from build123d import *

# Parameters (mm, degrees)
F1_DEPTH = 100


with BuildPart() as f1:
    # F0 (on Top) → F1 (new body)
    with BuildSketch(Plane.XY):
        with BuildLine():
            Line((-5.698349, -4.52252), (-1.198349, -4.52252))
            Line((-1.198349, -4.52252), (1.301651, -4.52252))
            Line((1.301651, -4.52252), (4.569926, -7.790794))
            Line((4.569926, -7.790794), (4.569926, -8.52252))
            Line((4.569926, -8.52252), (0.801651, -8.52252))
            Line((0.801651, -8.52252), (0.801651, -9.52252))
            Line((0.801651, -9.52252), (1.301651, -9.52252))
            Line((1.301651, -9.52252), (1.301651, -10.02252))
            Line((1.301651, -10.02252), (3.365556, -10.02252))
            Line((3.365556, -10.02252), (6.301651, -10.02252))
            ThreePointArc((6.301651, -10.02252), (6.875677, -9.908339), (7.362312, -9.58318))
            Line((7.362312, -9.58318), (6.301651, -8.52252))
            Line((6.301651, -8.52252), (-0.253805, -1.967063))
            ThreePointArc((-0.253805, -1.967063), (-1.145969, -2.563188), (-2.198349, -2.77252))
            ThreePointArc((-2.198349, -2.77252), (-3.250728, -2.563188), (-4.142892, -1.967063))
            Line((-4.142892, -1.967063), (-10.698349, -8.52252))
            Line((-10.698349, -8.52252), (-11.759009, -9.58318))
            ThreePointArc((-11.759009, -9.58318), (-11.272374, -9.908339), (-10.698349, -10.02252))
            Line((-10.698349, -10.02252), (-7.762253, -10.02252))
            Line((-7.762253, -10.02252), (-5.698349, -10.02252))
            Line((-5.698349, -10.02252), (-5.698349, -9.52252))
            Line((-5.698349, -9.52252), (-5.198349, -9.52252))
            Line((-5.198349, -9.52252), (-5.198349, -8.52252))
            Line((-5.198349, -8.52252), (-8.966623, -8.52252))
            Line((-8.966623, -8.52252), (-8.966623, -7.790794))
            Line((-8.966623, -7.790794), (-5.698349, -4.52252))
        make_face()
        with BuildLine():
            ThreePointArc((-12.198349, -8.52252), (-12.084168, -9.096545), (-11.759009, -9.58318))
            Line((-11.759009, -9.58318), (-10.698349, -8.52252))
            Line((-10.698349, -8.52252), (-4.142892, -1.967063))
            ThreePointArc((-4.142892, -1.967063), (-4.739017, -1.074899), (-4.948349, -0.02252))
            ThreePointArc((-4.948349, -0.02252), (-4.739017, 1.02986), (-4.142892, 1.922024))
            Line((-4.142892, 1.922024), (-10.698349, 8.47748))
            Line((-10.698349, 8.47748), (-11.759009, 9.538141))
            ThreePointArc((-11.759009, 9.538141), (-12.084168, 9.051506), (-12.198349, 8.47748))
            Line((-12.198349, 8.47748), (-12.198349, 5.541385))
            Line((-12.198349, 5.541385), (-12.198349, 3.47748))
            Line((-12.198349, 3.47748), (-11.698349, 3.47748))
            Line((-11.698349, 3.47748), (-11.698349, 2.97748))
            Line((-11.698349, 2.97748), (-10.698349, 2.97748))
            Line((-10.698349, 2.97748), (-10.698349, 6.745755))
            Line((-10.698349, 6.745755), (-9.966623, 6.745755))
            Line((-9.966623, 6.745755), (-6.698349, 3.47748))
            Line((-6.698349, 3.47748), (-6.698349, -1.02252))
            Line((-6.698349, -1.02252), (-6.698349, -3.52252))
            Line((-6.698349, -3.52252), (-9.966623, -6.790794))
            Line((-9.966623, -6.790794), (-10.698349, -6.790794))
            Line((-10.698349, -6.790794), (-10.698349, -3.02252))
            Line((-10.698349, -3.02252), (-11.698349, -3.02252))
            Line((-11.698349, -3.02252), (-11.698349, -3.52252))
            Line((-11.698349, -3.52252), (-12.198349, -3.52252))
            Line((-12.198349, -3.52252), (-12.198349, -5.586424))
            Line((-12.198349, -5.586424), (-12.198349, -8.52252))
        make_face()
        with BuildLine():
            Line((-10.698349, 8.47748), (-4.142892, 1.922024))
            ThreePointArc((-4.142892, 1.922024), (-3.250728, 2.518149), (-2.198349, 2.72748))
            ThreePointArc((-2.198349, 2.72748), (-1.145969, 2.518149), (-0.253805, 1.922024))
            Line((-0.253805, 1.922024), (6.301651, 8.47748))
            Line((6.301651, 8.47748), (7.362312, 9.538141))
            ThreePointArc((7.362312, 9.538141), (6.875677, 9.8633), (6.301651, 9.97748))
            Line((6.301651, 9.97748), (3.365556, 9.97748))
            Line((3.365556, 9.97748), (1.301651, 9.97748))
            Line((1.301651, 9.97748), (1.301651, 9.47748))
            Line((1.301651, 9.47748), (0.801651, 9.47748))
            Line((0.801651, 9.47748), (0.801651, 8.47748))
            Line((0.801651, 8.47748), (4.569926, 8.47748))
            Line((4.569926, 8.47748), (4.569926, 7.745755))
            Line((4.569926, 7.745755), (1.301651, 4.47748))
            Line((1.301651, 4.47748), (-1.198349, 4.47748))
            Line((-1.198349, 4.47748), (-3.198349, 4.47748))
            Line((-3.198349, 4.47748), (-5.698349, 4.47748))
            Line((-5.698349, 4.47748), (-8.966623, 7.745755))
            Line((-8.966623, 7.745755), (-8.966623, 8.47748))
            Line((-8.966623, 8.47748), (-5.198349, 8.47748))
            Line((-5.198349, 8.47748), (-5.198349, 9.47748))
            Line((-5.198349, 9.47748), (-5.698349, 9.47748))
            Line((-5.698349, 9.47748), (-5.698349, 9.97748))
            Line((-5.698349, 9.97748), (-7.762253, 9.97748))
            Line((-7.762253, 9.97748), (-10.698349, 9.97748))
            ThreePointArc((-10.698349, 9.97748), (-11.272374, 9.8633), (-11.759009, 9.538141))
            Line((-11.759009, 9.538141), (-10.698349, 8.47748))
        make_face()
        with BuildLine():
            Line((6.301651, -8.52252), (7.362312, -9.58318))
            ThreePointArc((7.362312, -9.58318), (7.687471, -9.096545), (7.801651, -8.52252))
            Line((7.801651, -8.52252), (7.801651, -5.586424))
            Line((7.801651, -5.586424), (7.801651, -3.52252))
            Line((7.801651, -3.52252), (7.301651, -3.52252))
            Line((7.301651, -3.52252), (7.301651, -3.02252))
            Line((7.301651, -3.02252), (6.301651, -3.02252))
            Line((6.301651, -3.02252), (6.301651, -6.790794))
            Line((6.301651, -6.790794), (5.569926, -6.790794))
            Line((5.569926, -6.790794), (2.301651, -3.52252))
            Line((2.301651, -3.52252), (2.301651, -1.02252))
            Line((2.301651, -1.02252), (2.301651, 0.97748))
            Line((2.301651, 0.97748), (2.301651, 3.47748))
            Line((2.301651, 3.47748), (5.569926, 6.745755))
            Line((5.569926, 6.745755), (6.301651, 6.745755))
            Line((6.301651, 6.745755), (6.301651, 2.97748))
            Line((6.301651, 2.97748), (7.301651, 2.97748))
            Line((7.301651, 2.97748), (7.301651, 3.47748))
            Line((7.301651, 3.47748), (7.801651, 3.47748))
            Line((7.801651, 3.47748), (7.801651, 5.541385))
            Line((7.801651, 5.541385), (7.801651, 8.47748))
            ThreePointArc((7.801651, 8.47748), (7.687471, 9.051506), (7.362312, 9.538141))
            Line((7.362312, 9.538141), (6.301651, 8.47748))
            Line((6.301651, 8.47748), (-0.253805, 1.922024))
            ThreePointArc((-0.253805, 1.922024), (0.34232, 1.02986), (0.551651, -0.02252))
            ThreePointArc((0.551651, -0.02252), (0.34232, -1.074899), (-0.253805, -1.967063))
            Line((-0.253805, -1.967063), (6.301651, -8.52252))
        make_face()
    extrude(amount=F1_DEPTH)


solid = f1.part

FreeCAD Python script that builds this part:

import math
import FreeCAD as App
import Part
import Sketcher

doc = App.newDocument("Part")
body = doc.addObject("PartDesign::Body", "Body")

# Sketch on XY plane
sketch1 = body.newObject("Sketcher::SketchObject", "Sketch")
sketch1.AttachmentSupport = (doc.getObject("XY_Plane"), [""])
sketch1.MapMode = "FlatFace"
sketch1.addGeometry(Part.LineSegment(App.Vector(-5.7, -4.52, 0), App.Vector(1.3, -4.52, 0)), False)
sketch1.addGeometry(Part.LineSegment(App.Vector(1.3, -4.52, 0), App.Vector(4.57, -7.79, 0)), False)
sketch1.addGeometry(Part.LineSegment(App.Vector(4.57, -7.79, 0), App.Vector(4.57, -8.52, 0)), False)
sketch1.addGeometry(Part.LineSegment(App.Vector(4.57, -8.52, 0), App.Vector(0.8, -8.52, 0)), False)
sketch1.addGeometry(Part.LineSegment(App.Vector(0.8, -8.52, 0), App.Vector(0.8, -9.52, 0)), False)
sketch1.addGeometry(Part.LineSegment(App.Vector(0.8, -9.52, 0), App.Vector(1.3, -9.52, 0)), False)
sketch1.addGeometry(Part.LineSegment(App.Vector(1.3, -9.52, 0), App.Vector(1.3, -10.02, 0)), False)
sketch1.addGeometry(Part.LineSegment(App.Vector(1.3, -10.02, 0), App.Vector(6.3, -10.02, 0)), False)
sketch1.addGeometry(Part.ArcOfCircle(Part.Circle(App.Vector(6.3, -8.52, 0), App.Vector(0, 0, 1), 1.5), math.radians(-90), math.radians(-45)), False)
sketch1.addGeometry(Part.ArcOfCircle(Part.Circle(App.Vector(6.3, -8.52, 0), App.Vector(0, 0, 1), 1.5), math.radians(-45), math.radians(0)), False)
sketch1.addGeometry(Part.LineSegment(App.Vector(7.8, -8.52, 0), App.Vector(7.8, -3.52, 0)), False)
sketch1.addGeometry(Part.LineSegment(App.Vector(7.8, -3.52, 0), App.Vector(7.3, -3.52, 0)), False)
sketch1.addGeometry(Part.LineSegment(App.Vector(7.3, -3.52, 0), App.Vector(7.3, -3.02, 0)), False)
sketch1.addGeometry(Part.LineSegment(App.Vector(7.3, -3.02, 0), App.Vector(6.3, -3.02, 0)), False)
sketch1.addGeometry(Part.LineSegment(App.Vector(6.3, -3.02, 0), App.Vector(6.3, -6.79, 0)), False)
sketch1.addGeometry(Part.LineSegment(App.Vector(6.3, -6.79, 0), App.Vector(5.57, -6.79, 0)), False)
sketch1.addGeometry(Part.LineSegment(App.Vector(5.57, -6.79, 0), App.Vector(2.3, -3.52, 0)), False)
sketch1.addGeometry(Part.LineSegment(App.Vector(2.3, -3.52, 0), App.Vector(2.3, 3.48, 0)), False)
sketch1.addGeometry(Part.LineSegment(App.Vector(2.3, 3.48, 0), App.Vector(5.57, 6.75, 0)), False)
sketch1.addGeometry(Part.LineSegment(App.Vector(5.57, 6.75, 0), App.Vector(6.3, 6.75, 0)), False)
sketch1.addGeometry(Part.LineSegment(App.Vector(6.3, 6.75, 0), App.Vector(6.3, 2.98, 0)), False)
sketch1.addGeometry(Part.LineSegment(App.Vector(6.3, 2.98, 0), App.Vector(7.3, 2.98, 0)), False)
sketch1.addGeometry(Part.LineSegment(App.Vector(7.3, 2.98, 0), App.Vector(7.3, 3.48, 0)), False)
sketch1.addGeometry(Part.LineSegment(App.Vector(7.3, 3.48, 0), App.Vector(7.8, 3.48, 0)), False)
sketch1.addGeometry(Part.LineSegment(App.Vector(7.8, 3.48, 0), App.Vector(7.8, 8.48, 0)), False)
sketch1.addGeometry(Part.ArcOfCircle(Part.Circle(App.Vector(6.3, 8.48, 0), App.Vector(0, 0, 1), 1.5), math.radians(0), math.radians(45)), False)
sketch1.addGeometry(Part.ArcOfCircle(Part.Circle(App.Vector(6.3, 8.48, 0), App.Vector(0, 0, 1), 1.5), math.radians(45), math.radians(90)), False)
sketch1.addGeometry(Part.LineSegment(App.Vector(6.3, 9.98, 0), App.Vector(1.3, 9.98, 0)), False)
sketch1.addGeometry(Part.LineSegment(App.Vector(1.3, 9.98, 0), App.Vector(1.3, 9.48, 0)), False)
sketch1.addGeometry(Part.LineSegment(App.Vector(1.3, 9.48, 0), App.Vector(0.8, 9.48, 0)), False)
sketch1.addGeometry(Part.LineSegment(App.Vector(0.8, 9.48, 0), App.Vector(0.8, 8.48, 0)), False)
sketch1.addGeometry(Part.LineSegment(App.Vector(0.8, 8.48, 0), App.Vector(4.57, 8.48, 0)), False)
sketch1.addGeometry(Part.LineSegment(App.Vector(4.57, 8.48, 0), App.Vector(4.57, 7.75, 0)), False)
sketch1.addGeometry(Part.LineSegment(App.Vector(4.57, 7.75, 0), App.Vector(1.3, 4.48, 0)), False)
sketch1.addGeometry(Part.LineSegment(App.Vector(1.3, 4.48, 0), App.Vector(-5.7, 4.48, 0)), False)
sketch1.addGeometry(Part.LineSegment(App.Vector(-5.7, 4.48, 0), App.Vector(-8.97, 7.75, 0)), False)
sketch1.addGeometry(Part.LineSegment(App.Vector(-8.97, 7.75, 0), App.Vector(-8.97, 8.48, 0)), False)
sketch1.addGeometry(Part.LineSegment(App.Vector(-8.97, 8.48, 0), App.Vector(-5.2, 8.48, 0)), False)
sketch1.addGeometry(Part.LineSegment(App.Vector(-5.2, 8.48, 0), App.Vector(-5.2, 9.48, 0)), False)
sketch1.addGeometry(Part.LineSegment(App.Vector(-5.2, 9.48, 0), App.Vector(-5.7, 9.48, 0)), False)
sketch1.addGeometry(Part.LineSegment(App.Vector(-5.7, 9.48, 0), App.Vector(-5.7, 9.98, 0)), False)
sketch1.addGeometry(Part.LineSegment(App.Vector(-5.7, 9.98, 0), App.Vector(-10.7, 9.98, 0)), False)
sketch1.addGeometry(Part.ArcOfCircle(Part.Circle(App.Vector(-10.7, 8.48, 0), App.Vector(0, 0, 1), 1.5), math.radians(90), math.radians(135)), False)
sketch1.addGeometry(Part.ArcOfCircle(Part.Circle(App.Vector(-10.7, 8.48, 0), App.Vector(0, 0, 1), 1.5), math.radians(135), math.radians(180)), False)
sketch1.addGeometry(Part.LineSegment(App.Vector(-12.2, 8.48, 0), App.Vector(-12.2, 3.48, 0)), False)
sketch1.addGeometry(Part.LineSegment(App.Vector(-12.2, 3.48, 0), App.Vector(-11.7, 3.48, 0)), False)
sketch1.addGeometry(Part.LineSegment(App.Vector(-11.7, 3.48, 0), App.Vector(-11.7, 2.98, 0)), False)
sketch1.addGeometry(Part.LineSegment(App.Vector(-11.7, 2.98, 0), App.Vector(-10.7, 2.98, 0)), False)
sketch1.addGeometry(Part.LineSegment(App.Vector(-10.7, 2.98, 0), App.Vector(-10.7, 6.75, 0)), False)
sketch1.addGeometry(Part.LineSegment(App.Vector(-10.7, 6.75, 0), App.Vector(-9.97, 6.75, 0)), False)
sketch1.addGeometry(Part.LineSegment(App.Vector(-9.97, 6.75, 0), App.Vector(-6.7, 3.48, 0)), False)
sketch1.addGeometry(Part.LineSegment(App.Vector(-6.7, 3.48, 0), App.Vector(-6.7, -3.52, 0)), False)
sketch1.addGeometry(Part.LineSegment(App.Vector(-6.7, -3.52, 0), App.Vector(-9.97, -6.79, 0)), False)
sketch1.addGeometry(Part.LineSegment(App.Vector(-9.97, -6.79, 0), App.Vector(-10.7, -6.79, 0)), False)
sketch1.addGeometry(Part.LineSegment(App.Vector(-10.7, -6.79, 0), App.Vector(-10.7, -3.02, 0)), False)
sketch1.addGeometry(Part.LineSegment(App.Vector(-10.7, -3.02, 0), App.Vector(-11.7, -3.02, 0)), False)
sketch1.addGeometry(Part.LineSegment(App.Vector(-11.7, -3.02, 0), App.Vector(-11.7, -3.52, 0)), False)
sketch1.addGeometry(Part.LineSegment(App.Vector(-11.7, -3.52, 0), App.Vector(-12.2, -3.52, 0)), False)
sketch1.addGeometry(Part.LineSegment(App.Vector(-12.2, -3.52, 0), App.Vector(-12.2, -8.52, 0)), False)
sketch1.addGeometry(Part.ArcOfCircle(Part.Circle(App.Vector(-10.7, -8.52, 0), App.Vector(0, 0, 1), 1.5), math.radians(-180), math.radians(-135)), False)
sketch1.addGeometry(Part.ArcOfCircle(Part.Circle(App.Vector(-10.7, -8.52, 0), App.Vector(0, 0, 1), 1.5), math.radians(-135), math.radians(-90)), False)
sketch1.addGeometry(Part.LineSegment(App.Vector(-10.7, -10.02, 0), App.Vector(-5.7, -10.02, 0)), False)
sketch1.addGeometry(Part.LineSegment(App.Vector(-5.7, -10.02, 0), App.Vector(-5.7, -9.52, 0)), False)
sketch1.addGeometry(Part.LineSegment(App.Vector(-5.7, -9.52, 0), App.Vector(-5.2, -9.52, 0)), False)
sketch1.addGeometry(Part.LineSegment(App.Vector(-5.2, -9.52, 0), App.Vector(-5.2, -8.52, 0)), False)
sketch1.addGeometry(Part.LineSegment(App.Vector(-5.2, -8.52, 0), App.Vector(-8.97, -8.52, 0)), False)
sketch1.addGeometry(Part.LineSegment(App.Vector(-8.97, -8.52, 0), App.Vector(-8.97, -7.79, 0)), False)
sketch1.addGeometry(Part.LineSegment(App.Vector(-8.97, -7.79, 0), App.Vector(-5.7, -4.52, 0)), False)
sketch1.addGeometry(Part.ArcOfCircle(Part.Circle(App.Vector(-2.2, -0.02, 0), App.Vector(0, 0, 1), 2.75), math.radians(-90), math.radians(-45)), False)
sketch1.addGeometry(Part.ArcOfCircle(Part.Circle(App.Vector(-2.2, -0.02, 0), App.Vector(0, 0, 1), 2.75), math.radians(-135), math.radians(-90)), False)
sketch1.addGeometry(Part.ArcOfCircle(Part.Circle(App.Vector(-2.2, -0.02, 0), App.Vector(0, 0, 1), 2.75), math.radians(-180), math.radians(-135)), False)
sketch1.addGeometry(Part.ArcOfCircle(Part.Circle(App.Vector(-2.2, -0.02, 0), App.Vector(0, 0, 1), 2.75), math.radians(135), math.radians(180)), False)
sketch1.addGeometry(Part.ArcOfCircle(Part.Circle(App.Vector(-2.2, -0.02, 0), App.Vector(0, 0, 1), 2.75), math.radians(90), math.radians(135)), False)
sketch1.addGeometry(Part.ArcOfCircle(Part.Circle(App.Vector(-2.2, -0.02, 0), App.Vector(0, 0, 1), 2.75), math.radians(45), math.radians(90)), False)
sketch1.addGeometry(Part.ArcOfCircle(Part.Circle(App.Vector(-2.2, -0.02, 0), App.Vector(0, 0, 1), 2.75), math.radians(0), math.radians(45)), False)
sketch1.addGeometry(Part.ArcOfCircle(Part.Circle(App.Vector(-2.2, -0.02, 0), App.Vector(0, 0, 1), 2.75), math.radians(-45), math.radians(0)), False)
sketch1.addConstraint(Sketcher.Constraint("Coincident", 0, 2, 1, 1))
sketch1.addConstraint(Sketcher.Constraint("Coincident", 1, 2, 2, 1))
sketch1.addConstraint(Sketcher.Constraint("Coincident", 2, 2, 3, 1))
sketch1.addConstraint(Sketcher.Constraint("Coincident", 3, 2, 4, 1))
sketch1.addConstraint(Sketcher.Constraint("Coincident", 4, 2, 5, 1))
sketch1.addConstraint(Sketcher.Constraint("Coincident", 5, 2, 6, 1))
sketch1.addConstraint(Sketcher.Constraint("Coincident", 6, 2, 7, 1))
sketch1.addConstraint(Sketcher.Constraint("Tangent", 7, 2, 8, 1))
sketch1.addConstraint(Sketcher.Constraint("Tangent", 8, 2, 9, 1))
sketch1.addConstraint(Sketcher.Constraint("Tangent", 9, 2, 10, 1))
sketch1.addConstraint(Sketcher.Constraint("Coincident", 10, 2, 11, 1))
sketch1.addConstraint(Sketcher.Constraint("Coincident", 11, 2, 12, 1))
sketch1.addConstraint(Sketcher.Constraint("Coincident", 12, 2, 13, 1))
sketch1.addConstraint(Sketcher.Constraint("Coincident", 13, 2, 14, 1))
sketch1.addConstraint(Sketcher.Constraint("Coincident", 14, 2, 15, 1))
sketch1.addConstraint(Sketcher.Constraint("Coincident", 15, 2, 16, 1))
sketch1.addConstraint(Sketcher.Constraint("Coincident", 16, 2, 17, 1))
sketch1.addConstraint(Sketcher.Constraint("Coincident", 17, 2, 18, 1))
sketch1.addConstraint(Sketcher.Constraint("Coincident", 18, 2, 19, 1))
sketch1.addConstraint(Sketcher.Constraint("Coincident", 19, 2, 20, 1))
sketch1.addConstraint(Sketcher.Constraint("Coincident", 20, 2, 21, 1))
sketch1.addConstraint(Sketcher.Constraint("Coincident", 21, 2, 22, 1))
sketch1.addConstraint(Sketcher.Constraint("Coincident", 22, 2, 23, 1))
sketch1.addConstraint(Sketcher.Constraint("Coincident", 23, 2, 24, 1))
sketch1.addConstraint(Sketcher.Constraint("Coincident", 24, 2, 25, 1))
sketch1.addConstraint(Sketcher.Constraint("Tangent", 25, 2, 26, 1))
sketch1.addConstraint(Sketcher.Constraint("Coincident", 26, 2, 27, 1))
sketch1.addConstraint(Sketcher.Constraint("Coincident", 27, 2, 28, 1))
sketch1.addConstraint(Sketcher.Constraint("Coincident", 28, 2, 29, 1))
sketch1.addConstraint(Sketcher.Constraint("Coincident", 29, 2, 30, 1))
sketch1.addConstraint(Sketcher.Constraint("Coincident", 30, 2, 31, 1))
sketch1.addConstraint(Sketcher.Constraint("Coincident", 31, 2, 32, 1))
sketch1.addConstraint(Sketcher.Constraint("Coincident", 32, 2, 33, 1))
sketch1.addConstraint(Sketcher.Constraint("Coincident", 33, 2, 34, 1))
sketch1.addConstraint(Sketcher.Constraint("Coincident", 34, 2, 35, 1))
sketch1.addConstraint(Sketcher.Constraint("Coincident", 35, 2, 36, 1))
sketch1.addConstraint(Sketcher.Constraint("Coincident", 36, 2, 37, 1))
sketch1.addConstraint(Sketcher.Constraint("Coincident", 37, 2, 38, 1))
sketch1.addConstraint(Sketcher.Constraint("Coincident", 38, 2, 39, 1))
sketch1.addConstraint(Sketcher.Constraint("Coincident", 39, 2, 40, 1))
sketch1.addConstraint(Sketcher.Constraint("Coincident", 40, 2, 41, 1))
sketch1.addConstraint(Sketcher.Constraint("Tangent", 41, 2, 42, 1))
sketch1.addConstraint(Sketcher.Constraint("Tangent", 42, 2, 43, 1))
sketch1.addConstraint(Sketcher.Constraint("Tangent", 43, 2, 44, 1))
sketch1.addConstraint(Sketcher.Constraint("Coincident", 44, 2, 45, 1))
sketch1.addConstraint(Sketcher.Constraint("Coincident", 45, 2, 46, 1))
sketch1.addConstraint(Sketcher.Constraint("Coincident", 46, 2, 47, 1))
sketch1.addConstraint(Sketcher.Constraint("Coincident", 47, 2, 48, 1))
sketch1.addConstraint(Sketcher.Constraint("Coincident", 48, 2, 49, 1))
sketch1.addConstraint(Sketcher.Constraint("Coincident", 49, 2, 50, 1))
sketch1.addConstraint(Sketcher.Constraint("Coincident", 50, 2, 51, 1))
sketch1.addConstraint(Sketcher.Constraint("Coincident", 51, 2, 52, 1))
sketch1.addConstraint(Sketcher.Constraint("Coincident", 52, 2, 53, 1))
sketch1.addConstraint(Sketcher.Constraint("Coincident", 53, 2, 54, 1))
sketch1.addConstraint(Sketcher.Constraint("Coincident", 54, 2, 55, 1))
sketch1.addConstraint(Sketcher.Constraint("Coincident", 55, 2, 56, 1))
sketch1.addConstraint(Sketcher.Constraint("Coincident", 56, 2, 57, 1))
sketch1.addConstraint(Sketcher.Constraint("Coincident", 57, 2, 58, 1))
sketch1.addConstraint(Sketcher.Constraint("Tangent", 58, 2, 59, 1))
sketch1.addConstraint(Sketcher.Constraint("Tangent", 59, 2, 60, 1))
sketch1.addConstraint(Sketcher.Constraint("Tangent", 60, 2, 61, 1))
sketch1.addConstraint(Sketcher.Constraint("Coincident", 61, 2, 62, 1))
sketch1.addConstraint(Sketcher.Constraint("Coincident", 62, 2, 63, 1))
sketch1.addConstraint(Sketcher.Constraint("Coincident", 63, 2, 64, 1))
sketch1.addConstraint(Sketcher.Constraint("Coincident", 64, 2, 65, 1))
sketch1.addConstraint(Sketcher.Constraint("Coincident", 65, 2, 66, 1))
sketch1.addConstraint(Sketcher.Constraint("Coincident", 66, 2, 67, 1))
sketch1.addConstraint(Sketcher.Constraint("Coincident", 67, 2, 0, 1))
sketch1.addConstraint(Sketcher.Constraint("Tangent", 68, 1, 69, 2))
sketch1.addConstraint(Sketcher.Constraint("Tangent", 69, 1, 70, 2))
sketch1.addConstraint(Sketcher.Constraint("Tangent", 70, 1, 71, 2))
sketch1.addConstraint(Sketcher.Constraint("Tangent", 71, 1, 72, 2))
sketch1.addConstraint(Sketcher.Constraint("Tangent", 72, 1, 73, 2))
sketch1.addConstraint(Sketcher.Constraint("Tangent", 73, 1, 74, 2))
sketch1.addConstraint(Sketcher.Constraint("Tangent", 74, 1, 75, 2))
sketch1.addConstraint(Sketcher.Constraint("Tangent", 75, 1, 68, 2))
sketch1.addConstraint(Sketcher.Constraint("Horizontal", 0))
sketch1.addConstraint(Sketcher.Constraint("Vertical", 2))
sketch1.addConstraint(Sketcher.Constraint("Horizontal", 3))
sketch1.addConstraint(Sketcher.Constraint("Vertical", 4))
sketch1.addConstraint(Sketcher.Constraint("Horizontal", 5))
sketch1.addConstraint(Sketcher.Constraint("Vertical", 6))
sketch1.addConstraint(Sketcher.Constraint("Horizontal", 7))
sketch1.addConstraint(Sketcher.Constraint("Vertical", 10))
sketch1.addConstraint(Sketcher.Constraint("Horizontal", 11))
sketch1.addConstraint(Sketcher.Constraint("Vertical", 12))
sketch1.addConstraint(Sketcher.Constraint("Horizontal", 13))
sketch1.addConstraint(Sketcher.Constraint("Vertical", 14))
sketch1.addConstraint(Sketcher.Constraint("Horizontal", 15))
sketch1.addConstraint(Sketcher.Constraint("Vertical", 17))
sketch1.addConstraint(Sketcher.Constraint("Horizontal", 19))
sketch1.addConstraint(Sketcher.Constraint("Vertical", 20))
sketch1.addConstraint(Sketcher.Constraint("Horizontal", 21))
sketch1.addConstraint(Sketcher.Constraint("Vertical", 22))
sketch1.addConstraint(Sketcher.Constraint("Horizontal", 23))
sketch1.addConstraint(Sketcher.Constraint("Vertical", 24))
sketch1.addConstraint(Sketcher.Constraint("Horizontal", 27))
sketch1.addConstraint(Sketcher.Constraint("Vertical", 28))
sketch1.addConstraint(Sketcher.Constraint("Horizontal", 29))
sketch1.addConstraint(Sketcher.Constraint("Vertical", 30))
sketch1.addConstraint(Sketcher.Constraint("Horizontal", 31))
sketch1.addConstraint(Sketcher.Constraint("Vertical", 32))
sketch1.addConstraint(Sketcher.Constraint("Horizontal", 34))
sketch1.addConstraint(Sketcher.Constraint("Vertical", 36))
sketch1.addConstraint(Sketcher.Constraint("Horizontal", 37))
sketch1.addConstraint(Sketcher.Constraint("Vertical", 38))
sketch1.addConstraint(Sketcher.Constraint("Horizontal", 39))
sketch1.addConstraint(Sketcher.Constraint("Vertical", 40))
sketch1.addConstraint(Sketcher.Constraint("Horizontal", 41))
sketch1.addConstraint(Sketcher.Constraint("Vertical", 44))
sketch1.addConstraint(Sketcher.Constraint("Horizontal", 45))
sketch1.addConstraint(Sketcher.Constraint("Vertical", 46))
sketch1.addConstraint(Sketcher.Constraint("Horizontal", 47))
sketch1.addConstraint(Sketcher.Constraint("Vertical", 48))
sketch1.addConstraint(Sketcher.Constraint("Horizontal", 49))
sketch1.addConstraint(Sketcher.Constraint("Vertical", 51))
sketch1.addConstraint(Sketcher.Constraint("Horizontal", 53))
sketch1.addConstraint(Sketcher.Constraint("Vertical", 54))
sketch1.addConstraint(Sketcher.Constraint("Horizontal", 55))
sketch1.addConstraint(Sketcher.Constraint("Vertical", 56))
sketch1.addConstraint(Sketcher.Constraint("Horizontal", 57))
sketch1.addConstraint(Sketcher.Constraint("Vertical", 58))
sketch1.addConstraint(Sketcher.Constraint("Horizontal", 61))
sketch1.addConstraint(Sketcher.Constraint("Vertical", 62))
sketch1.addConstraint(Sketcher.Constraint("Horizontal", 63))
sketch1.addConstraint(Sketcher.Constraint("Vertical", 64))
sketch1.addConstraint(Sketcher.Constraint("Horizontal", 65))
sketch1.addConstraint(Sketcher.Constraint("Vertical", 66))
sketch1.addConstraint(Sketcher.Constraint("Coincident", 70, 3, 68, 3))
sketch1.addConstraint(Sketcher.Constraint("Coincident", 72, 3, 68, 3))
sketch1.addConstraint(Sketcher.Constraint("Equal", 9, 25))
sketch1.addConstraint(Sketcher.Constraint("Equal", 25, 26))
sketch1.addConstraint(Sketcher.Constraint("Equal", 26, 42))
sketch1.addConstraint(Sketcher.Constraint("Equal", 8, 43))
sketch1.addConstraint(Sketcher.Constraint("Equal", 43, 59))
sketch1.addConstraint(Sketcher.Constraint("Equal", 59, 60))
sketch1.addConstraint(Sketcher.Constraint("Equal", 72, 73))
sketch1.addConstraint(Sketcher.Constraint("Parallel", 1, 16))
sketch1.addConstraint(Sketcher.Constraint("Perpendicular", 16, 18))
sketch1.addConstraint(Sketcher.Constraint("Parallel", 18, 33))
sketch1.addConstraint(Sketcher.Constraint("Perpendicular", 33, 35))
sketch1.addConstraint(Sketcher.Constraint("Parallel", 35, 50))
sketch1.addConstraint(Sketcher.Constraint("Perpendicular", 50, 52))
sketch1.addConstraint(Sketcher.Constraint("Parallel", 52, 67))
sketch1.addConstraint(Sketcher.Constraint("Horizontal", 26, 3, 42, 3))
sketch1.addConstraint(Sketcher.Constraint("Horizontal", 8, 3, 59, 3))
sketch1.addConstraint(Sketcher.Constraint("Horizontal", 59, 3, 2, 2))
sketch1.addConstraint(Sketcher.Constraint("Horizontal", 3, 2, 9, 2))
sketch1.addConstraint(Sketcher.Constraint("Horizontal", 11, 2, 16, 2))
sketch1.addConstraint(Sketcher.Constraint("Horizontal", 17, 2, 22, 2))
sketch1.addConstraint(Sketcher.Constraint("Horizontal", 43, 3, 24, 2))
sketch1.addConstraint(Sketcher.Constraint("Horizontal", 24, 2, 30, 2))
sketch1.addConstraint(Sketcher.Constraint("Horizontal", 32, 2, 35, 2))
sketch1.addConstraint(Sketcher.Constraint("Horizontal", 31, 2, 36, 2))
sketch1.addConstraint(Sketcher.Constraint("Horizontal", 29, 2, 38, 2))
sketch1.addConstraint(Sketcher.Constraint("Horizontal", 25, 2, 42, 2))
sketch1.addConstraint(Sketcher.Constraint("Horizontal", 23, 2, 44, 2))
sketch1.addConstraint(Sketcher.Constraint("Horizontal", 21, 2, 46, 2))
sketch1.addConstraint(Sketcher.Constraint("Horizontal", 19, 2, 48, 2))
sketch1.addConstraint(Sketcher.Constraint("Horizontal", 45, 2, 50, 2))
sketch1.addConstraint(Sketcher.Constraint("Horizontal", 16, 2, 51, 2))
sketch1.addConstraint(Sketcher.Constraint("Horizontal", 15, 2, 52, 2))
sketch1.addConstraint(Sketcher.Constraint("Horizontal", 13, 2, 54, 2))
sketch1.addConstraint(Sketcher.Constraint("Horizontal", 51, 2, 56, 2))
sketch1.addConstraint(Sketcher.Constraint("Horizontal", 8, 2, 59, 2))
sketch1.addConstraint(Sketcher.Constraint("Horizontal", 5, 2, 62, 2))
sketch1.addConstraint(Sketcher.Constraint("Horizontal", 58, 2, 64, 2))
sketch1.addConstraint(Sketcher.Constraint("Horizontal", 1, 2, 66, 2))
sketch1.addConstraint(Sketcher.Constraint("Horizontal", 75, 3, 70, 1))
sketch1.addConstraint(Sketcher.Constraint("Horizontal", 71, 1, 73, 1))
sketch1.addConstraint(Sketcher.Constraint("Horizontal", 70, 1, 74, 1))
sketch1.addConstraint(Sketcher.Constraint("Horizontal", 69, 1, 75, 1))
sketch1.addConstraint(Sketcher.Constraint("Vertical", 9, 3, 25, 3))
sketch1.addConstraint(Sketcher.Constraint("Vertical", 43, 3, 59, 3))
sketch1.addConstraint(Sketcher.Constraint("Vertical", 0, 2, 5, 2))
sketch1.addConstraint(Sketcher.Constraint("Vertical", 7, 2, 13, 2))
sketch1.addConstraint(Sketcher.Constraint("Vertical", 15, 2, 18, 2))
sketch1.addConstraint(Sketcher.Constraint("Vertical", 14, 2, 19, 2))
sketch1.addConstraint(Sketcher.Constraint("Vertical", 12, 2, 21, 2))
sketch1.addConstraint(Sketcher.Constraint("Vertical", 8, 2, 25, 2))
sketch1.addConstraint(Sketcher.Constraint("Vertical", 20, 2, 26, 2))
sketch1.addConstraint(Sketcher.Constraint("Vertical", 6, 2, 27, 2))
sketch1.addConstraint(Sketcher.Constraint("Vertical", 4, 2, 29, 2))
sketch1.addConstraint(Sketcher.Constraint("Vertical", 2, 2, 31, 2))
sketch1.addConstraint(Sketcher.Constraint("Vertical", 28, 2, 33, 2))
sketch1.addConstraint(Sketcher.Constraint("Vertical", 34, 2, 39, 2))
sketch1.addConstraint(Sketcher.Constraint("Vertical", 41, 2, 47, 2))
sketch1.addConstraint(Sketcher.Constraint("Vertical", 49, 2, 52, 2))
sketch1.addConstraint(Sketcher.Constraint("Vertical", 48, 2, 53, 2))
sketch1.addConstraint(Sketcher.Constraint("Vertical", 46, 2, 55, 2))
sketch1.addConstraint(Sketcher.Constraint("Vertical", 40, 2, 61, 2))
sketch1.addConstraint(Sketcher.Constraint("Vertical", 38, 2, 63, 2))
sketch1.addConstraint(Sketcher.Constraint("Vertical", 36, 2, 65, 2))
sketch1.addConstraint(Sketcher.Constraint("Vertical", 73, 3, 68, 1))
sketch1.addConstraint(Sketcher.Constraint("Vertical", 69, 1, 71, 1))
sketch1.addConstraint(Sketcher.Constraint("Vertical", 68, 1, 72, 1))
sketch1.addConstraint(Sketcher.Constraint("Equal", 5, 11))
sketch1.addConstraint(Sketcher.Constraint("Equal", 31, 37))
sketch1.addConstraint(Sketcher.Constraint("Equal", 27, 41))
sketch1.addConstraint(Sketcher.Constraint("Equal", 39, 45))
sketch1.addConstraint(Sketcher.Constraint("Equal", 19, 49))
sketch1.addConstraint(Sketcher.Constraint("Equal", 53, 2))
sketch1.addConstraint(Sketcher.Constraint("Equal", 55, 4))
sketch1.addConstraint(Sketcher.Constraint("Equal", 61, 10))
sketch1.addConstraint(Sketcher.Constraint("Equal", 6, 12))
sketch1.addConstraint(Sketcher.Constraint("Equal", 65, 14))
sketch1.addConstraint(Sketcher.Constraint("Equal", 34, 17))
sketch1.addConstraint(Sketcher.Constraint("Equal", 14, 20))
sketch1.addConstraint(Sketcher.Constraint("Equal", 10, 24))
sketch1.addConstraint(Sketcher.Constraint("Equal", 22, 28))
sketch1.addConstraint(Sketcher.Constraint("Equal", 2, 32))
sketch1.addConstraint(Sketcher.Constraint("DistanceX", 0, 1, 0, 2, 7.0))
sketch1.addConstraint(Sketcher.Constraint("DistanceX", 7, 1, 7, 2, 5.0))
sketch1.addConstraint(Sketcher.Constraint("DistanceX", 13, 2, 13, 1, 1.0))
sketch1.addConstraint(Sketcher.Constraint("DistanceX", 5, 1, 5, 2, 0.5))
sketch1.addConstraint(Sketcher.Constraint("Radius", 68, 2.750004))
sketch1.addConstraint(Sketcher.Constraint("Distance", 1, 4.622038))
sketch1.addConstraint(Sketcher.Constraint("DistanceX", 15, 2, 15, 1, 0.731725))
sketch1.addConstraint(Sketcher.Constraint("DistanceX", -1, 1, 8, 3, 6.301651))
sketch1.addConstraint(Sketcher.Constraint("DistanceY", -1, 1, 43, 3, 8.47748))
sketch1.addConstraint(Sketcher.Constraint("DistanceX", 68, 3, -1, 1, 2.198351))
sketch1.addConstraint(Sketcher.Constraint("DistanceY", 71, 3, -1, 1, 0.022522))
sketch1.addConstraint(Sketcher.Constraint("DistanceX", -1, 1, 8, 2, 7.362312))
sketch1.addConstraint(Sketcher.Constraint("DistanceX", 69, 1, -1, 1, 4.142892))
pad1 = body.newObject("PartDesign::Pad", "Pad")
pad1.Profile = sketch1
pad1.Length = 100

doc.recompute()
